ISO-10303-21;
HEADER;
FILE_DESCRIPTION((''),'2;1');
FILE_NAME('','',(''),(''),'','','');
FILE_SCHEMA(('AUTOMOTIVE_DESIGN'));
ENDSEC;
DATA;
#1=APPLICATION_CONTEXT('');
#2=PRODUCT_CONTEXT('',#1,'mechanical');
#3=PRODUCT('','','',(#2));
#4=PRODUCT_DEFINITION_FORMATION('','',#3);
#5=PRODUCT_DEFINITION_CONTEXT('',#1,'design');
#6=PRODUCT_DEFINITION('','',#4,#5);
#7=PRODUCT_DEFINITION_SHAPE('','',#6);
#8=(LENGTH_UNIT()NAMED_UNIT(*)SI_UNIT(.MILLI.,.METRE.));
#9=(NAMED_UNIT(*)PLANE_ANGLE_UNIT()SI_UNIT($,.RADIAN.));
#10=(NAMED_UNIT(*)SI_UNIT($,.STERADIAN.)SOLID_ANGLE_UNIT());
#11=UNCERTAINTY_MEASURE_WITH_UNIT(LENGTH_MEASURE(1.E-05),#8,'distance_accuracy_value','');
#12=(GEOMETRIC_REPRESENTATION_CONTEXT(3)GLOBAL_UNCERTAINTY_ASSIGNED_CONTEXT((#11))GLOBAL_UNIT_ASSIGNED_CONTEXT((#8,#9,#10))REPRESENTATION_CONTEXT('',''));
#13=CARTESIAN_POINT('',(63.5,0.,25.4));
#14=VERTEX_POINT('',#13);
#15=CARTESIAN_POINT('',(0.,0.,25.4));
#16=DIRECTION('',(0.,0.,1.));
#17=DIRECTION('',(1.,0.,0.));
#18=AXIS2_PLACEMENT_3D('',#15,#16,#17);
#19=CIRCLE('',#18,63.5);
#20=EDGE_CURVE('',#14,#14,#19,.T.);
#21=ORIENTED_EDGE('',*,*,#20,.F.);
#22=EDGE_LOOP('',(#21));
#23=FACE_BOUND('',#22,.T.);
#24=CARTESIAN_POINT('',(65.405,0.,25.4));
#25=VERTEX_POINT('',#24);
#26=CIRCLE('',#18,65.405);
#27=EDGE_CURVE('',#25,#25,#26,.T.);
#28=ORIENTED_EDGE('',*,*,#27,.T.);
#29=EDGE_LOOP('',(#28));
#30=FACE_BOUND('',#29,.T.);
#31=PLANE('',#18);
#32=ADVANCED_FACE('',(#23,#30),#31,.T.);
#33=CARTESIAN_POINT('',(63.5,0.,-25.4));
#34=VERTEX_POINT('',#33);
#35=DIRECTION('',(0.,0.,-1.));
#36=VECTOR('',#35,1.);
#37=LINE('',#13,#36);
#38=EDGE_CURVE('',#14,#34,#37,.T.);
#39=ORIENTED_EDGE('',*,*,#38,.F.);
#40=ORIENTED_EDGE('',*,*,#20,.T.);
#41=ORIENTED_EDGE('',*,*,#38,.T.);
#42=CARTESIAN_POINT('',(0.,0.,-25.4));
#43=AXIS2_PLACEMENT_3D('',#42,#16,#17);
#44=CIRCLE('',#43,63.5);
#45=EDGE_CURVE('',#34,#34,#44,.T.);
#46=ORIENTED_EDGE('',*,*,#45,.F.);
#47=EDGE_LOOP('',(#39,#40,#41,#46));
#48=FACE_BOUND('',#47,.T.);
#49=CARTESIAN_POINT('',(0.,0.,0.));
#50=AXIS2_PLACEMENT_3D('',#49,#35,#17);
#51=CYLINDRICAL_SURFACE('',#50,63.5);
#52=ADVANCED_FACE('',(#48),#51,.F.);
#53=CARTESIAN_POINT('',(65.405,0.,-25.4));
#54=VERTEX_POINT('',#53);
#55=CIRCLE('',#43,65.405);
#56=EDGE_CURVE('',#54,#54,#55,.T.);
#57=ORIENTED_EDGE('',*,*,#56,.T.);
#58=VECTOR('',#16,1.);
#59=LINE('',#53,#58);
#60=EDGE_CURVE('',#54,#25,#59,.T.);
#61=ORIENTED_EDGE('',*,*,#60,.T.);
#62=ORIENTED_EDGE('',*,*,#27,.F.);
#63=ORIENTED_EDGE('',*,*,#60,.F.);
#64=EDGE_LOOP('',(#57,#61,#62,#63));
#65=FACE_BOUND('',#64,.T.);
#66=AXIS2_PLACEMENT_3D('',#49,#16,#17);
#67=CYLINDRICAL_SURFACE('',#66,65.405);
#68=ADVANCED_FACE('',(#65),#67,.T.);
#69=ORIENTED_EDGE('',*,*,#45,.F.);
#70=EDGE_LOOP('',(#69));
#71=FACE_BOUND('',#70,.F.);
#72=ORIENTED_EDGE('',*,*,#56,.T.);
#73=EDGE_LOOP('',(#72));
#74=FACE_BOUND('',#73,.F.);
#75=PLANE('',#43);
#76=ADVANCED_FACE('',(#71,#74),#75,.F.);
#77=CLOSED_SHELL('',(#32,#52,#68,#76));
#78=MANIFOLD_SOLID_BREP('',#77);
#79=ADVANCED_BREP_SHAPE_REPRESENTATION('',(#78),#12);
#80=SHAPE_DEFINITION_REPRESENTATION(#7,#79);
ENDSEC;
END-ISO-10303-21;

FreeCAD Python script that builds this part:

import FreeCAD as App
import Part
import Sketcher
Q = App.Units.Quantity

doc = App.newDocument("Part")
body = doc.addObject("PartDesign::Body", "Body")

# Sketch on XY plane
sketch1 = doc.addObject("Sketcher::SketchObject", "Sketch")
body.addObject(sketch1)
sketch1.AttachmentSupport = (doc.XY_Plane, [""])
sketch1.MapMode = "FlatFace"
sketch1.addGeometry(Part.Circle(App.Vector(0, 0, 0), App.Vector(0, 0, 1), 65), False)
sketch1.addGeometry(Part.Circle(App.Vector(0, 0, 0), App.Vector(0, 0, 1), 64), False)
sketch1.addConstraint(Sketcher.Constraint("Coincident", 0, 3, -1, 1))
sketch1.addConstraint(Sketcher.Constraint("Coincident", 1, 3, -1, 1))
sketch1.addConstraint(Sketcher.Constraint("Diameter", 1, Q("5 in")))
sketch1.addConstraint(Sketcher.Constraint("Diameter", 0, Q("5.15 in")))
pad1 = doc.addObject("PartDesign::Pad", "Pad")
body.addObject(pad1)
pad1.Profile = sketch1
pad1.Length = Q("2 in")
pad1.Midplane = True

doc.recompute()
